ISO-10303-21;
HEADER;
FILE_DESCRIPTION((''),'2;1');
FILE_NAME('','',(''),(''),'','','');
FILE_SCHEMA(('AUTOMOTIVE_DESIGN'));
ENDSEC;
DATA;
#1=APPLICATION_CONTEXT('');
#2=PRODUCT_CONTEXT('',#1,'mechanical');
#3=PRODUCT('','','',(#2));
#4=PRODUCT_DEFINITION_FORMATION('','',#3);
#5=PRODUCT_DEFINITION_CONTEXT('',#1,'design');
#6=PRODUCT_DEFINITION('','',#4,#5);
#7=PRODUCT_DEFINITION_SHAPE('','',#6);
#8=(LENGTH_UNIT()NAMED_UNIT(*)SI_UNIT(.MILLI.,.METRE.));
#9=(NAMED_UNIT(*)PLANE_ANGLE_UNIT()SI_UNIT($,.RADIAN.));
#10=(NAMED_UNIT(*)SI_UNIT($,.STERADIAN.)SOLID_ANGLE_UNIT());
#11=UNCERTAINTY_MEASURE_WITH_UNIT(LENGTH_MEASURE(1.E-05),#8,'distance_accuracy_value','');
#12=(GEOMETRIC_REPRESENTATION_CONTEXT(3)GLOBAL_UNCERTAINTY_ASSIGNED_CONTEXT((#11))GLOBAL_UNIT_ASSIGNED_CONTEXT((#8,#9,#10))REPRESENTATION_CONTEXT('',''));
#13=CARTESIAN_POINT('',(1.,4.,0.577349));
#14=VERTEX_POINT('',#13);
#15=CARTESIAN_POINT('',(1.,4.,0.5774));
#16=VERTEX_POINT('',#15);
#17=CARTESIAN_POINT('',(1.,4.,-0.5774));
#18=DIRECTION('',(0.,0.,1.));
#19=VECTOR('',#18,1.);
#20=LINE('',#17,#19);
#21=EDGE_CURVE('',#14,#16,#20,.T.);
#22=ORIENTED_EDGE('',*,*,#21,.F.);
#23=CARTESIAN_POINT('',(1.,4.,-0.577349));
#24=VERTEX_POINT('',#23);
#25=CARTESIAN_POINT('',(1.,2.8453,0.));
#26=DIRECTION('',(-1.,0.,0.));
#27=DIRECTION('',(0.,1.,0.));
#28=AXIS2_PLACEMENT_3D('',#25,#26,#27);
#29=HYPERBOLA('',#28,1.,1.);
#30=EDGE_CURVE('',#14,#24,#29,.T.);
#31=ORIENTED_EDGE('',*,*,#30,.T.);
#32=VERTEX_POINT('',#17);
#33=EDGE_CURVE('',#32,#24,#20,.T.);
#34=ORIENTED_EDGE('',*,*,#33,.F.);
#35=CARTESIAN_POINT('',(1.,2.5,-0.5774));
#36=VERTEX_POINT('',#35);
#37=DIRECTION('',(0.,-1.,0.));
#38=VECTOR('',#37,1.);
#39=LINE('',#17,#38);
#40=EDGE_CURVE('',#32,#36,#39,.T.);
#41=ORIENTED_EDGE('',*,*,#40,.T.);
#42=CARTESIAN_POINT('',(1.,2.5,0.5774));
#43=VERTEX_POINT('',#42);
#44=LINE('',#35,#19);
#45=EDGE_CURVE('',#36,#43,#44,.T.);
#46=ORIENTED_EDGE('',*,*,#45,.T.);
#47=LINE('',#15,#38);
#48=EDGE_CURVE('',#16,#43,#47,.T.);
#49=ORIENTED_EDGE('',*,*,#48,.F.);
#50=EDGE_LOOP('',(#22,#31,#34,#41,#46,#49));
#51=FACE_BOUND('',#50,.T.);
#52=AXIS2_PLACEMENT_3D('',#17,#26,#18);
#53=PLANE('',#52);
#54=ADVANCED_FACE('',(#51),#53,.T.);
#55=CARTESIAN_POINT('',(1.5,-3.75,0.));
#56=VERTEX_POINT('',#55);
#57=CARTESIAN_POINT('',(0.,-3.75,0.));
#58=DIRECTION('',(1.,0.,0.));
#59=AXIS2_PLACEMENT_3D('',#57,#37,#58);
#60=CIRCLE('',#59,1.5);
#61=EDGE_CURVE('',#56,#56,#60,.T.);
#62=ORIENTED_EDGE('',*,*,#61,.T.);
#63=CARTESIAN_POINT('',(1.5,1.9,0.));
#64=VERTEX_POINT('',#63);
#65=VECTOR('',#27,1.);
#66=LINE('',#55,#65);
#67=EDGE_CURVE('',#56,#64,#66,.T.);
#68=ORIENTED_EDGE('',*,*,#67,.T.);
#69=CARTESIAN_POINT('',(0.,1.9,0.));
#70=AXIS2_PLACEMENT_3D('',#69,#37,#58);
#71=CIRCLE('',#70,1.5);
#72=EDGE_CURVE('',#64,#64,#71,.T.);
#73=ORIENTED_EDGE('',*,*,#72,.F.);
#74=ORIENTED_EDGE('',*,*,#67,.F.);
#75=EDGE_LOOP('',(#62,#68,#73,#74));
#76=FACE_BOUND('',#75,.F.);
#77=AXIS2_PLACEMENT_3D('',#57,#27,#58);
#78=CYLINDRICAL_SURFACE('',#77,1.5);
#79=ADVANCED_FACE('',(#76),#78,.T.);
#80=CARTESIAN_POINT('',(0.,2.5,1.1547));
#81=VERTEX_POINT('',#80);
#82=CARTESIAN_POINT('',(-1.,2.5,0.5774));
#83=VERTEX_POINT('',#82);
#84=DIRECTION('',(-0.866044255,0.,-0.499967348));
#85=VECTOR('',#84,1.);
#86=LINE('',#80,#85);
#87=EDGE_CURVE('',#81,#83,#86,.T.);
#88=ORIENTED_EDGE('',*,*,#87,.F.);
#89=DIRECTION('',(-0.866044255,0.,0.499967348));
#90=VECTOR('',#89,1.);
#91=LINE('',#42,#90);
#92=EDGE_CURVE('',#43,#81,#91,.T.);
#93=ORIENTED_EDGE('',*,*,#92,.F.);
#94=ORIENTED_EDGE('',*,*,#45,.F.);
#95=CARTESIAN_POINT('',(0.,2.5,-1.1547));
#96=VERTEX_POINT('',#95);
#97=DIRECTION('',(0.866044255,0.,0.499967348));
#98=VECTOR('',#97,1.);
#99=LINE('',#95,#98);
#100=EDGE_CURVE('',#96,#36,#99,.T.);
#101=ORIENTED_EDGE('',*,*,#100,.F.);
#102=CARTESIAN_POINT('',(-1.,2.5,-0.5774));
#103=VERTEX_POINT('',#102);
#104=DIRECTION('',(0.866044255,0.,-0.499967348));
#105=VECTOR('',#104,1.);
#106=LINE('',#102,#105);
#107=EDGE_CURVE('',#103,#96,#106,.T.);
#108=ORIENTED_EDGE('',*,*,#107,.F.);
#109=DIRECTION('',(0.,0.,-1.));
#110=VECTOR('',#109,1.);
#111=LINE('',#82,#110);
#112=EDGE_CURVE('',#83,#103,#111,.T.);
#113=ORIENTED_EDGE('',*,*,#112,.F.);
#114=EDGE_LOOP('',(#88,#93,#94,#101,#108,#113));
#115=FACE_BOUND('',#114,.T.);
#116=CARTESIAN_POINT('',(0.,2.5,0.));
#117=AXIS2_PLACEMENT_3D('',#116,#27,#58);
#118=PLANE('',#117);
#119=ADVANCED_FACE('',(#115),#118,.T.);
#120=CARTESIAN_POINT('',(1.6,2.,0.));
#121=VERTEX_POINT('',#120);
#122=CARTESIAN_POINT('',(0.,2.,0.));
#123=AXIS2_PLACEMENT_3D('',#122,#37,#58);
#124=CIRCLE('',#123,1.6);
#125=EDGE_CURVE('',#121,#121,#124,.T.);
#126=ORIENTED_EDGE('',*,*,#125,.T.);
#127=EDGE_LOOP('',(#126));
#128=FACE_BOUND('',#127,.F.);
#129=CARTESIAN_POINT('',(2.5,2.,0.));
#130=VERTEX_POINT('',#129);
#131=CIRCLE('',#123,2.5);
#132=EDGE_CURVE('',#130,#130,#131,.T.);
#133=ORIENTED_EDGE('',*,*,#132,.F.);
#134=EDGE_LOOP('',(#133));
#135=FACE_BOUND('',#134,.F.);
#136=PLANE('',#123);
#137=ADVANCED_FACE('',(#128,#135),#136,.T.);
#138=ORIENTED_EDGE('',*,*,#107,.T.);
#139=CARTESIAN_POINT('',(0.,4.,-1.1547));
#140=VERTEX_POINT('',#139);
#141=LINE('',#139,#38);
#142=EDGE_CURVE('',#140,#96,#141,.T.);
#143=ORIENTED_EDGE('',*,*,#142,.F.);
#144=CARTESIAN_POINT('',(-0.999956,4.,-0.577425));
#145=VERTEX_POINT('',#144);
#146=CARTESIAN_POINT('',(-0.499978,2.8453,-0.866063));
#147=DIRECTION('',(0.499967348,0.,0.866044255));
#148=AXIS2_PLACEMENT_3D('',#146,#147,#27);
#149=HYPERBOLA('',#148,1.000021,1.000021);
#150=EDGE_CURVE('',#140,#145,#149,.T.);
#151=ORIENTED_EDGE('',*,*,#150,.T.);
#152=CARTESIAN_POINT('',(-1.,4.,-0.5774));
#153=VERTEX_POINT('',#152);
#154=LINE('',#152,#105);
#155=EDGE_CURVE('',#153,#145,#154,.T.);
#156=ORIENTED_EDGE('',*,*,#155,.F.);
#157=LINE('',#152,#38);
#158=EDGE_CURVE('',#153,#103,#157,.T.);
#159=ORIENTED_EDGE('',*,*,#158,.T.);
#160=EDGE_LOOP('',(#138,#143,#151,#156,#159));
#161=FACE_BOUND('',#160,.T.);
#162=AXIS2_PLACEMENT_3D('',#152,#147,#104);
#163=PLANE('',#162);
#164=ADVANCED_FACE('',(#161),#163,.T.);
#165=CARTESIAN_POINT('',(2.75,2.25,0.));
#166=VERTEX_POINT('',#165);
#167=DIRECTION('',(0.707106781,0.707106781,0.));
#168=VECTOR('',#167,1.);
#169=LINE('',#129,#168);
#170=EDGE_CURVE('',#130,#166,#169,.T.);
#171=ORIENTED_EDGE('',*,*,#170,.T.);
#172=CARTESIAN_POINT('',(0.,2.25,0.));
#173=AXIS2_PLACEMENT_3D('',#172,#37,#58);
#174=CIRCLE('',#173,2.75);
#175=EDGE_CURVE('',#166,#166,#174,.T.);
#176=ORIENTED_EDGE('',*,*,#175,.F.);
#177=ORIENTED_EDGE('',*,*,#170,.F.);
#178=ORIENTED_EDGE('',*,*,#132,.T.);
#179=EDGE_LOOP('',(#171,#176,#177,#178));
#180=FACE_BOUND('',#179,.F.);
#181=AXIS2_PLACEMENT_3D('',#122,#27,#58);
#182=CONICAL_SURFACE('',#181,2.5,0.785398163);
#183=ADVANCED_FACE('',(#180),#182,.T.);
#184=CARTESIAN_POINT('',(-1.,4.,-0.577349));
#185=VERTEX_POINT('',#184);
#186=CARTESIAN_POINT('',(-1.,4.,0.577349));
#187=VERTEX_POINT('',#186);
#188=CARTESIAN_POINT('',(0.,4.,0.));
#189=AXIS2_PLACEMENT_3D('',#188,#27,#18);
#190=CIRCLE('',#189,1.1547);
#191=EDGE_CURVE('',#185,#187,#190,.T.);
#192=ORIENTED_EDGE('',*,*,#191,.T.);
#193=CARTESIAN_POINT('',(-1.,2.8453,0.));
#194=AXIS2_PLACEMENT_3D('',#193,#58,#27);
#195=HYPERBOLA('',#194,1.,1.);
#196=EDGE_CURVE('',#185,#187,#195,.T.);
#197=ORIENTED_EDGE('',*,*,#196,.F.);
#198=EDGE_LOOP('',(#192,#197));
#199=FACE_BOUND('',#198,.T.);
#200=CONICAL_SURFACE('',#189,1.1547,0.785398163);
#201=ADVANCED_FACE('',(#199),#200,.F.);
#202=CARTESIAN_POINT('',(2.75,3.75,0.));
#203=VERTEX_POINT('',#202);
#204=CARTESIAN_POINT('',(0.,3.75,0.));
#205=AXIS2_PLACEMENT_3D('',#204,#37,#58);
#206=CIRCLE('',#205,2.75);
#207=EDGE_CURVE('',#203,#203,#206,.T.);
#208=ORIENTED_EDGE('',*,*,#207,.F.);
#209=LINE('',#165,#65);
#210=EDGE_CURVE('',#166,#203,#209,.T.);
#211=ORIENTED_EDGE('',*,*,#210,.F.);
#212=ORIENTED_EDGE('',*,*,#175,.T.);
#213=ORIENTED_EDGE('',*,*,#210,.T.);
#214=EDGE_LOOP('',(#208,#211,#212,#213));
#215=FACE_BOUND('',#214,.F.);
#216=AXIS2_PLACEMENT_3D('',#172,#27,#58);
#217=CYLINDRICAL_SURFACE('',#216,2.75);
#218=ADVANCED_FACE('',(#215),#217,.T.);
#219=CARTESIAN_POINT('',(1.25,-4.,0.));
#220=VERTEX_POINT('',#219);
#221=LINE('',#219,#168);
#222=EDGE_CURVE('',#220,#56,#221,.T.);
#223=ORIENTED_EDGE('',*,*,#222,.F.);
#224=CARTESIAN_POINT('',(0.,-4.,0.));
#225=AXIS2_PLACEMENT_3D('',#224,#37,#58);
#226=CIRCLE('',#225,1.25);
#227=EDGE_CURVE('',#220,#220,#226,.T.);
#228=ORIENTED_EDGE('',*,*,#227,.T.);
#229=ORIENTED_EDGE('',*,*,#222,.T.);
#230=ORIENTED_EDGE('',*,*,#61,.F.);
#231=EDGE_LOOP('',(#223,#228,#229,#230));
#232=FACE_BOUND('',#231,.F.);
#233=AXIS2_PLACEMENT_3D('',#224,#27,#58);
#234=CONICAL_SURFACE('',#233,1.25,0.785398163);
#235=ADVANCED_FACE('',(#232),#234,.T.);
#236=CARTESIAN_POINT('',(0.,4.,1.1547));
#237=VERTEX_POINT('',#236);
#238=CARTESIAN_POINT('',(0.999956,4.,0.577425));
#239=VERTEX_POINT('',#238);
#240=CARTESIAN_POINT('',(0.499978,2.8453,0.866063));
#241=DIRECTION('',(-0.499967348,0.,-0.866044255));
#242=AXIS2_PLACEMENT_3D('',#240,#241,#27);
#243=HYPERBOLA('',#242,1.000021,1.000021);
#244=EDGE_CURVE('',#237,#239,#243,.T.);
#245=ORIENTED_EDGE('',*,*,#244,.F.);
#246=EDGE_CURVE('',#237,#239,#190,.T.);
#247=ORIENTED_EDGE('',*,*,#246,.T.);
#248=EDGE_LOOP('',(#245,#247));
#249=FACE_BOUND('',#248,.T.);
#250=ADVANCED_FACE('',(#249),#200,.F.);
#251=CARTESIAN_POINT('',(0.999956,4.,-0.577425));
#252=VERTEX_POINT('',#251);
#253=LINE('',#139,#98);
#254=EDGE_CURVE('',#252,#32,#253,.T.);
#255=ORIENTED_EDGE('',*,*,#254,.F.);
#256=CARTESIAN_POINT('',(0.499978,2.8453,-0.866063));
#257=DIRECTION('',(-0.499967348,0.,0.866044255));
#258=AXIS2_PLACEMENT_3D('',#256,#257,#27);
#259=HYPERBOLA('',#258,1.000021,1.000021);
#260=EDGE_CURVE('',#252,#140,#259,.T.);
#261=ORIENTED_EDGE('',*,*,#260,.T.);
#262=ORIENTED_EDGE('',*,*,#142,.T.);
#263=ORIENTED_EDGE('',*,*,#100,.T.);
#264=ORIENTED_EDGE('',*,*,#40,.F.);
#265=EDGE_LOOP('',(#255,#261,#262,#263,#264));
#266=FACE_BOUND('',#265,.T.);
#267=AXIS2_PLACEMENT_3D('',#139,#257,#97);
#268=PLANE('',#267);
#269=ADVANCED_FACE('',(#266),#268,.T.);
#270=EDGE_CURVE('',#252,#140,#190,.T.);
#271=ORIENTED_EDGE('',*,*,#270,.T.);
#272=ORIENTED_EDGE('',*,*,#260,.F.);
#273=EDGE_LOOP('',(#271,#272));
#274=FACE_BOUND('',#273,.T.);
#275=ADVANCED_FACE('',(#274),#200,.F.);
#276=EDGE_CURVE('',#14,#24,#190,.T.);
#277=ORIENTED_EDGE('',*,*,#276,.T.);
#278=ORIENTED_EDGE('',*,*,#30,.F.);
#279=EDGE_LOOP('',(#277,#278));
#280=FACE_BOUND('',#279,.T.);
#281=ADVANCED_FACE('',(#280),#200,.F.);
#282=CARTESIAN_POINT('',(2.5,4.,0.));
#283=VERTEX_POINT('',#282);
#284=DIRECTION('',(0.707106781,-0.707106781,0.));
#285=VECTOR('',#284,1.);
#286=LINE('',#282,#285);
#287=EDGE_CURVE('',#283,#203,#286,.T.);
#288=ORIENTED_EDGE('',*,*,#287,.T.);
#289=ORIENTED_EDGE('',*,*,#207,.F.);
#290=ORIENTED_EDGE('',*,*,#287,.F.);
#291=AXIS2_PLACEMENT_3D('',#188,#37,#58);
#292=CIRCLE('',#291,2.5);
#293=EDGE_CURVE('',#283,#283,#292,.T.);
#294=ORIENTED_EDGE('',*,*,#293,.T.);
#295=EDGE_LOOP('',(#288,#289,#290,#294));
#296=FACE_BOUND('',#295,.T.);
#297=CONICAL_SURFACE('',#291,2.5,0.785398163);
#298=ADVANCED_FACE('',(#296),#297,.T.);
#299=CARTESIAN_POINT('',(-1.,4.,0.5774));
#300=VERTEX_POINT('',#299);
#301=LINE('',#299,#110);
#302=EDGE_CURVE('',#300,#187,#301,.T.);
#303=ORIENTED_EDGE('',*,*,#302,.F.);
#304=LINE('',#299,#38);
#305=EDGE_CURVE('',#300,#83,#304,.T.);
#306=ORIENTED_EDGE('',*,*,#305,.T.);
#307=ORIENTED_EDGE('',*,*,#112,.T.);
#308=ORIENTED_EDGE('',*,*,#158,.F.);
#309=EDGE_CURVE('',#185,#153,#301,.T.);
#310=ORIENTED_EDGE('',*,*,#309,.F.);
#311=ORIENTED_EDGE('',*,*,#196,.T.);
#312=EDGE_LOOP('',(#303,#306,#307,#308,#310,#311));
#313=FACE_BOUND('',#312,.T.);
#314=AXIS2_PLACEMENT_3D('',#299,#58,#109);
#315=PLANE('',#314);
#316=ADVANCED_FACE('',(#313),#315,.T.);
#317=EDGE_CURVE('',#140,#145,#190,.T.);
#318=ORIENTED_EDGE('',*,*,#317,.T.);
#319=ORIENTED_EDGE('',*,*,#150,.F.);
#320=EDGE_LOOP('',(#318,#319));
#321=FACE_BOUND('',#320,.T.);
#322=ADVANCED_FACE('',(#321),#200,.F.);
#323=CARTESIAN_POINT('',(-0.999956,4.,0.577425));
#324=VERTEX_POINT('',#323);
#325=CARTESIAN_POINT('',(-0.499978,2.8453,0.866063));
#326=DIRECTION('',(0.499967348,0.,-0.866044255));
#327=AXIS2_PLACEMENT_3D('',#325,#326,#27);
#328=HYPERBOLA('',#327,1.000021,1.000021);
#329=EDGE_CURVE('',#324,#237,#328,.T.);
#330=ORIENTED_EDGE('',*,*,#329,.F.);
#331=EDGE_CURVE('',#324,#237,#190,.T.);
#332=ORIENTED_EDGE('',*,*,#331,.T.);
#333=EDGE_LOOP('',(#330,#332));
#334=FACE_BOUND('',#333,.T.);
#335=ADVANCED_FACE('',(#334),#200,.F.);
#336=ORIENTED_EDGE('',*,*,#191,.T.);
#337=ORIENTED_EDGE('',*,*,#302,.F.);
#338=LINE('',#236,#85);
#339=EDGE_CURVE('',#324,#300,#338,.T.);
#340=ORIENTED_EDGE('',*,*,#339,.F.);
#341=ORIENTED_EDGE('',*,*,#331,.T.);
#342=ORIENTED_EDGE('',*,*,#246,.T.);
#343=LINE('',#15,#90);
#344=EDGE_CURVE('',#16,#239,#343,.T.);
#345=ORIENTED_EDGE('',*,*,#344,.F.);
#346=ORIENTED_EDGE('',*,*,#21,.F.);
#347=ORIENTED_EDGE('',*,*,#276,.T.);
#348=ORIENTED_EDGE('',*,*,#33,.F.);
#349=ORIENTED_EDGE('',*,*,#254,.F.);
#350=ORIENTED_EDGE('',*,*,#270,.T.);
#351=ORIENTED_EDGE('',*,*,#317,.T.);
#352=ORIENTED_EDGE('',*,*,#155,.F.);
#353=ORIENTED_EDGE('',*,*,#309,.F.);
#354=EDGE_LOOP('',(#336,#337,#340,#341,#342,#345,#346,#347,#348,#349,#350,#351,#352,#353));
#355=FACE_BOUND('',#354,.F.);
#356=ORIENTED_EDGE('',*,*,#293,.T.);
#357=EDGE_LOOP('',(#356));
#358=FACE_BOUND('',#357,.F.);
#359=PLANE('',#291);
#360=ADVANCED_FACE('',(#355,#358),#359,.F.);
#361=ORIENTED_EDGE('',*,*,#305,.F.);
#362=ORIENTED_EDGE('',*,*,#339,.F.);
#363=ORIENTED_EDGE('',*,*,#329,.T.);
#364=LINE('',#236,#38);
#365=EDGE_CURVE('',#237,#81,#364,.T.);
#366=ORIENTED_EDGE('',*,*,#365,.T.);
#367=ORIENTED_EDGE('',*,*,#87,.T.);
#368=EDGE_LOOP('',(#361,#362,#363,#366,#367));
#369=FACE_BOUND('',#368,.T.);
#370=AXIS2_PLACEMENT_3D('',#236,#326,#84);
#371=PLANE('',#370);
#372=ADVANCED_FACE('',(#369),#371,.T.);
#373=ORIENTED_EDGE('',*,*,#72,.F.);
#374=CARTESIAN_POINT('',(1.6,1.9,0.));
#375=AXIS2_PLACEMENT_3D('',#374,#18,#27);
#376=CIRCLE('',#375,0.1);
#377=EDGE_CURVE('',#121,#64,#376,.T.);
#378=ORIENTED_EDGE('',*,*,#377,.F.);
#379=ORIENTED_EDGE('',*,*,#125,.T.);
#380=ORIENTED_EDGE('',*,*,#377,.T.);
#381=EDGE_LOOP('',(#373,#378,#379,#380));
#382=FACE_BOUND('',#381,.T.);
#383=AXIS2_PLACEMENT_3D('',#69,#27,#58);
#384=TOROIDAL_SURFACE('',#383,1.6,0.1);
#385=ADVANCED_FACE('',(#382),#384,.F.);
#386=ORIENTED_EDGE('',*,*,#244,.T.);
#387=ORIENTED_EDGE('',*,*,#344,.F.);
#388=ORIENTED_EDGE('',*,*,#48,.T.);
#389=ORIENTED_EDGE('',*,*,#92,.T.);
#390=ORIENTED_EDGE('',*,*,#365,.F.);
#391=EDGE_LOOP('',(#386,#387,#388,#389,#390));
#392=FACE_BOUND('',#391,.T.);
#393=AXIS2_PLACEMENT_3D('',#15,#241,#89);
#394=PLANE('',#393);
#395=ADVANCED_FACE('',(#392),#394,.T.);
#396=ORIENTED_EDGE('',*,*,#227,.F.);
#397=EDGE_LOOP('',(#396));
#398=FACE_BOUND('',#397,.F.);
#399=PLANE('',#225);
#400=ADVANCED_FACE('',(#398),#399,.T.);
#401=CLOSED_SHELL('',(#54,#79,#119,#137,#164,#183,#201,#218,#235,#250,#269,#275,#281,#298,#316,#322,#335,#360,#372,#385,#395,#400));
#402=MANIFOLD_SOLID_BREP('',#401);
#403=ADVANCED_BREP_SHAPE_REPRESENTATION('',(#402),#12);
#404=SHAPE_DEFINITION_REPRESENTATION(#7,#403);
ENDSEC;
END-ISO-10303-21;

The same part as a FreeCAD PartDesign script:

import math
import FreeCAD as App
import Part
import Sketcher

V = App.Vector
Q = App.Units.Quantity


def add_polygon(sketch, points):
    """Adds a closed chain of lines whose ends are joined by coincident constraints."""
    first, n = sketch.GeometryCount, len(points)
    for a, b in zip(points, points[1:] + points[:1]):
        sketch.addGeometry(Part.LineSegment(App.Vector(*a, 0), App.Vector(*b, 0)), False)
    for i in range(n):
        sketch.addConstraint(Sketcher.Constraint("Coincident", first + i, 2, first + (i + 1) % n, 1))

doc = App.newDocument("Part")
body = doc.addObject("PartDesign::Body", "Body")

# Sketch on XY plane
sketch1 = body.newObject("Sketcher::SketchObject", "Sketch")
sketch1.AttachmentSupport = (doc.getObject("XY_Plane"), [""])
sketch1.MapMode = "FlatFace"
sketch1.addGeometry([
    Part.LineSegment(V(2.5, 4, 0), V(0, 4, 0)),  # 0
    Part.LineSegment(V(0, 4, 0), V(0, -4, 0)),  # 1
    Part.LineSegment(V(0, -4, 0), V(1.25, -4, 0)),  # 2
    Part.LineSegment(V(1.25, -4, 0), V(1.5, -3.75, 0)),  # 3
    Part.LineSegment(V(1.5, -3.75, 0), V(1.5, 1.9, 0)),  # 4
    Part.ArcOfCircle(Part.Circle(V(1.6, 1.9, 0), V(0, 0, 1), 0.1), math.radians(90), math.radians(180)),  # 5
    Part.LineSegment(V(1.6, 2, 0), V(2.5, 2, 0)),  # 6
    Part.LineSegment(V(2.5, 2, 0), V(2.75, 2.25, 0)),  # 7
    Part.LineSegment(V(2.75, 2.25, 0), V(2.75, 3.75, 0)),  # 8
    Part.LineSegment(V(2.75, 3.75, 0), V(2.5, 4, 0)),  # 9
], False)
sketch1.addConstraint([
    Sketcher.Constraint("Coincident", 0, 2, 1, 1),
    Sketcher.Constraint("Coincident", 1, 2, 2, 1),
    Sketcher.Constraint("Coincident", 2, 2, 3, 1),
    Sketcher.Constraint("Coincident", 3, 2, 4, 1),
    Sketcher.Constraint("Tangent", 4, 2, 5, 2),
    Sketcher.Constraint("Tangent", 5, 1, 6, 1),
    Sketcher.Constraint("Coincident", 6, 2, 7, 1),
    Sketcher.Constraint("Coincident", 7, 2, 8, 1),
    Sketcher.Constraint("Coincident", 8, 2, 9, 1),
    Sketcher.Constraint("Coincident", 9, 2, 0, 1),
    Sketcher.Constraint("Horizontal", 0),
    Sketcher.Constraint("Vertical", 1),
    Sketcher.Constraint("Horizontal", 2),
    Sketcher.Constraint("Vertical", 4),
    Sketcher.Constraint("Horizontal", 6),
    Sketcher.Constraint("Vertical", 8),
    Sketcher.Constraint("Symmetric", 0, 2, 1, 2, -1, 1),
    Sketcher.Constraint("Parallel", 3, 7),
    Sketcher.Constraint("Perpendicular", 7, 9),
    Sketcher.Constraint("Vertical", 6, 2, 9, 2),
    Sketcher.Constraint("Equal", 3, 7),
    Sketcher.Constraint("Equal", 7, 9),
    Sketcher.Constraint("DistanceY", -1, 1, 5, 1, Q("2 mm")),
    Sketcher.Constraint("DistanceY", 5, 1, 0, 2, Q("2 mm")),
    Sketcher.Constraint("Radius", 5, Q("0.1 mm")),
    Sketcher.Constraint("DistanceX", 2, 2, 3, 2, Q("0.25 mm")),
    Sketcher.Constraint("DistanceX", 0, 2, 0, 1, Q("2.5 mm")),
    Sketcher.Constraint("DistanceX", 6, 1, 6, 2, Q("0.9 mm")),
])
revolution = body.newObject("PartDesign::Revolution", "Revolution")
revolution.Profile = sketch1
revolution.ReferenceAxis = (sketch1, ["V_Axis"])
revolution.Angle = 360

# Sketch on XZ plane
sketch2 = body.newObject("Sketcher::SketchObject", "Sketch001")
sketch2.AttachmentSupport = (doc.getObject("XZ_Plane"), [""])
sketch2.MapMode = "FlatFace"
sketch2.AttachmentOffset = App.Placement(V(0, 0, -4), App.Rotation())
add_polygon(sketch2, [(-1, 0.6), (0, 1.2), (1, 0.6), (1, -0.6), (0, -1.2), (-1, -0.6)])  # lines 0-5
sketch2.addConstraint([
    Sketcher.Constraint("Vertical", 2),
    Sketcher.Constraint("Vertical", 5),
    Sketcher.Constraint("Symmetric", 0, 2, 3, 2, -1, 1),
    Sketcher.Constraint("Symmetric", 1, 2, 4, 2, -1, 1),
    Sketcher.Constraint("PointOnObject", 0, 2, -2),
    Sketcher.Constraint("Parallel", 0, 3),
    Sketcher.Constraint("Horizontal", 2, 2, 4, 2),
    Sketcher.Constraint("DistanceX", 4, 2, 2, 2, Q("2 mm")),
    Sketcher.Constraint("DistanceY", 2, 2, 2, 1, Q("1.1548 mm")),
    Sketcher.Constraint("DistanceY", 2, 2, 0, 2, Q("1.732 mm")),
])
pocket1 = body.newObject("PartDesign::Pocket", "Pocket")
pocket1.Profile = sketch2
pocket1.Length = 1.5
pocket1.Reversed = True

# Sketch on YZ plane
sketch3 = body.newObject("Sketcher::SketchObject", "Sketch002")
sketch3.AttachmentSupport = (doc.getObject("YZ_Plane"), [""])
sketch3.MapMode = "FlatFace"
add_polygon(sketch3, [(4, 0.2), (4, 1.2), (3, 0.2)])  # lines 0-2
sketch3.addConstraint([
    Sketcher.Constraint("Vertical", 0),
    Sketcher.Constraint("Horizontal", 2),
    Sketcher.Constraint("Equal", 2, 0),
    Sketcher.Constraint("DistanceX", 2, 1, 2, 2, Q("1 mm")),
    Sketcher.Constraint("DistanceX", -1, 1, 0, 2, Q("4 mm")),
    Sketcher.Constraint("DistanceY", -1, 1, 0, 2, Q("1.1547 mm")),
])
groove = body.newObject("PartDesign::Groove", "Groove")
groove.Profile = sketch3
groove.ReferenceAxis = (sketch3, ["H_Axis"])
groove.Angle = 360

doc.recompute()
